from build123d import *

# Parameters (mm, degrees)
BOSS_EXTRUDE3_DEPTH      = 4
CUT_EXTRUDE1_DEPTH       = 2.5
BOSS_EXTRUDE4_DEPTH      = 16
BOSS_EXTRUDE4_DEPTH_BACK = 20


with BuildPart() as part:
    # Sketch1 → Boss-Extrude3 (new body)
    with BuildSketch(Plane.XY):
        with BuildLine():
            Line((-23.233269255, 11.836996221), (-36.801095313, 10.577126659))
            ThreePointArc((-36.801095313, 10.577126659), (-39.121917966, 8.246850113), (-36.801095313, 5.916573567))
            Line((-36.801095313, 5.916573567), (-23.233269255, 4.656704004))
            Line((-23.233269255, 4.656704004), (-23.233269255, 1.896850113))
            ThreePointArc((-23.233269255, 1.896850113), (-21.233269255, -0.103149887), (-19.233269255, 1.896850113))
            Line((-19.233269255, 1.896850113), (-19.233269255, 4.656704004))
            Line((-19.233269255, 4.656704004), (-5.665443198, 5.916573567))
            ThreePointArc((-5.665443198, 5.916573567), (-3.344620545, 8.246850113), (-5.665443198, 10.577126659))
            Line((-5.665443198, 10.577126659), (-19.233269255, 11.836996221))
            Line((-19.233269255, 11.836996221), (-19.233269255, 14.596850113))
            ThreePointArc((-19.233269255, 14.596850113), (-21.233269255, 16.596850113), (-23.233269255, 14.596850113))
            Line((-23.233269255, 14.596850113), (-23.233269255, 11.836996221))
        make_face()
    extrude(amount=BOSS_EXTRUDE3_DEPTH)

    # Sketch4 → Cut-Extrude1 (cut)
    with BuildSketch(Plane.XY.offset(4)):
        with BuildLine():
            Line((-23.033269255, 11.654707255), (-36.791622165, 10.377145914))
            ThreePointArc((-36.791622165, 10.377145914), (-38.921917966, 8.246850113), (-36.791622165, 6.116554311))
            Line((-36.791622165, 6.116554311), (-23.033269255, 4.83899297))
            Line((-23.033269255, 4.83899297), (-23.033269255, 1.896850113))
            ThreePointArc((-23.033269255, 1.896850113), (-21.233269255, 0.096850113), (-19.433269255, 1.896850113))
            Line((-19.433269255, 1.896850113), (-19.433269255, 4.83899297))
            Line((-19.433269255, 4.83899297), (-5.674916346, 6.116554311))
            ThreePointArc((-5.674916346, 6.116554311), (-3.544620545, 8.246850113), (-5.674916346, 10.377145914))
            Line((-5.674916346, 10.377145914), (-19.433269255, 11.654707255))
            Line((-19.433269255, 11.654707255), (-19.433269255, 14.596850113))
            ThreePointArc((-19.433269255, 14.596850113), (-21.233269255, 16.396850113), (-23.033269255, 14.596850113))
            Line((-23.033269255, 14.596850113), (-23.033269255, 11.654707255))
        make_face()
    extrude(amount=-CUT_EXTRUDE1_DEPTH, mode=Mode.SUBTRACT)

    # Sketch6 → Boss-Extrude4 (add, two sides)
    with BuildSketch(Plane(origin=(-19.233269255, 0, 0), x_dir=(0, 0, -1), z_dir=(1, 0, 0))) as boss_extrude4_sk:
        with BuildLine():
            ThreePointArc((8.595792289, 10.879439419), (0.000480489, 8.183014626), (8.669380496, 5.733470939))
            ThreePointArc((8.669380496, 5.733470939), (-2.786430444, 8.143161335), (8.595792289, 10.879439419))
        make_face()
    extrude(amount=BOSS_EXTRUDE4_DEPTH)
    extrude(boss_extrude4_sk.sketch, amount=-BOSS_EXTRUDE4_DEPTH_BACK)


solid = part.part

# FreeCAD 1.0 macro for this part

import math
import FreeCAD as App
import Part
import Sketcher

V = App.Vector
Q = App.Units.Quantity

doc = App.newDocument("Part")
body = doc.addObject("PartDesign::Body", "Body")

# Sketch on XY plane
sketch1 = body.newObject("Sketcher::SketchObject", "Sketch")
sketch1.AttachmentSupport = (doc.getObject("XY_Plane"), [""])
sketch1.MapMode = "FlatFace"
sketch1.addGeometry(Part.LineSegment(V(-23.233269, 11.836996, 0), V(-36.801095, 10.577127, 0)), False)
sketch1.addGeometry(Part.ArcOfCircle(Part.Circle(V(-36.791622, 8.24685, 0), V(0, 0, 1), 2.330296), math.radians(90.23292), math.radians(269.76708)), False)
sketch1.addGeometry(Part.LineSegment(V(-36.801095, 5.916574, 0), V(-23.233269, 4.656704, 0)), False)
sketch1.addGeometry(Part.LineSegment(V(-23.233269, 4.656704, 0), V(-23.233269, 1.89685, 0)), False)
sketch1.addGeometry(Part.ArcOfCircle(Part.Circle(V(-21.233269, 1.89685, 0), V(0, 0, 1), 2), math.radians(180), math.radians(360)), False)
sketch1.addGeometry(Part.LineSegment(V(-19.233269, 1.89685, 0), V(-19.233269, 4.656704, 0)), False)
sketch1.addGeometry(Part.LineSegment(V(-19.233269, 4.656704, 0), V(-5.665443, 5.916574, 0)), False)
sketch1.addGeometry(Part.ArcOfCircle(Part.Circle(V(-5.674916, 8.24685, 0), V(0, 0, 1), 2.330296), math.radians(-89.76708), math.radians(89.76708)), False)
sketch1.addGeometry(Part.LineSegment(V(-5.665443, 10.577127, 0), V(-19.233269, 11.836996, 0)), False)
sketch1.addGeometry(Part.LineSegment(V(-19.233269, 11.836996, 0), V(-19.233269, 14.59685, 0)), False)
sketch1.addGeometry(Part.ArcOfCircle(Part.Circle(V(-21.233269, 14.59685, 0), V(0, 0, 1), 2), math.radians(0), math.radians(180)), False)
sketch1.addGeometry(Part.LineSegment(V(-23.233269, 14.59685, 0), V(-23.233269, 11.836996, 0)), False)
sketch1.addConstraint(Sketcher.Constraint("Coincident", 0, 2, 1, 1))
sketch1.addConstraint(Sketcher.Constraint("Coincident", 1, 2, 2, 1))
sketch1.addConstraint(Sketcher.Constraint("Coincident", 2, 2, 3, 1))
sketch1.addConstraint(Sketcher.Constraint("Tangent", 3, 2, 4, 1))
sketch1.addConstraint(Sketcher.Constraint("Tangent", 4, 2, 5, 1))
sketch1.addConstraint(Sketcher.Constraint("Coincident", 5, 2, 6, 1))
sketch1.addConstraint(Sketcher.Constraint("Coincident", 6, 2, 7, 1))
sketch1.addConstraint(Sketcher.Constraint("Coincident", 7, 2, 8, 1))
sketch1.addConstraint(Sketcher.Constraint("Coincident", 8, 2, 9, 1))
sketch1.addConstraint(Sketcher.Constraint("Tangent", 9, 2, 10, 1))
sketch1.addConstraint(Sketcher.Constraint("Tangent", 10, 2, 11, 1))
sketch1.addConstraint(Sketcher.Constraint("Coincident", 11, 2, 0, 1))
sketch1.addConstraint(Sketcher.Constraint("Vertical", 3))
sketch1.addConstraint(Sketcher.Constraint("Vertical", 5))
sketch1.addConstraint(Sketcher.Constraint("Vertical", 9))
sketch1.addConstraint(Sketcher.Constraint("Vertical", 11))
sketch1.addConstraint(Sketcher.Constraint("Equal", 1, 7))
sketch1.addConstraint(Sketcher.Constraint("Equal", 4, 10))
sketch1.addConstraint(Sketcher.Constraint("Parallel", 0, 6))
sketch1.addConstraint(Sketcher.Constraint("Parallel", 2, 8))
sketch1.addConstraint(Sketcher.Constraint("Horizontal", 1, 3, 7, 3))
sketch1.addConstraint(Sketcher.Constraint("Horizontal", 2, 2, 5, 2))
sketch1.addConstraint(Sketcher.Constraint("Horizontal", 1, 2, 6, 2))
sketch1.addConstraint(Sketcher.Constraint("Horizontal", 0, 2, 7, 2))
sketch1.addConstraint(Sketcher.Constraint("Horizontal", 8, 2, 11, 2))
sketch1.addConstraint(Sketcher.Constraint("Vertical", 4, 3, 10, 3))
sketch1.addConstraint(Sketcher.Constraint("Vertical", 0, 2, 1, 2))
sketch1.addConstraint(Sketcher.Constraint("Equal", 5, 9))
sketch1.addConstraint(Sketcher.Constraint("Radius", 4, Q("2 mm")))
sketch1.addConstraint(Sketcher.Constraint("DistanceY", 4, 3, 10, 3, Q("12.7 mm")))
sketch1.addConstraint(Sketcher.Constraint("Radius", 1, Q("2.330296 mm")))
sketch1.addConstraint(Sketcher.Constraint("DistanceY", 3, 2, 3, 1, Q("2.759854 mm")))
sketch1.addConstraint(Sketcher.Constraint("DistanceY", -1, 1, 1, 3, Q("8.24685 mm")))
sketch1.addConstraint(Sketcher.Constraint("DistanceX", 4, 3, -1, 1, Q("21.233269 mm")))
sketch1.addConstraint(Sketcher.Constraint("DistanceX", 0, 2, 7, 3, Q("31.126179 mm")))
sketch1.addConstraint(Sketcher.Constraint("Distance", 0, Q("13.626194 mm")))
pad1 = body.newObject("PartDesign::Pad", "Pad")
pad1.Profile = sketch1
pad1.Length = 4

# Sketch on XY plane
sketch2 = body.newObject("Sketcher::SketchObject", "Sketch001")
sketch2.AttachmentSupport = (doc.getObject("XY_Plane"), [""])
sketch2.MapMode = "FlatFace"
sketch2.AttachmentOffset = App.Placement(V(0, 0, 4), App.Rotation())
sketch2.addGeometry(Part.LineSegment(V(-23, 11.7, 0), V(-36.8, 10.4, 0)), False)
sketch2.addGeometry(Part.ArcOfCircle(Part.Circle(V(-36.8, 8.2, 0), V(0, 0, 1), 2.1), math.radians(90), math.radians(270)), False)
sketch2.addGeometry(Part.LineSegment(V(-36.8, 6.1, 0), V(-23, 4.8, 0)), False)
sketch2.addGeometry(Part.LineSegment(V(-23, 4.8, 0), V(-23, 1.9, 0)), False)
sketch2.addGeometry(Part.ArcOfCircle(Part.Circle(V(-21.2, 1.9, 0), V(0, 0, 1), 1.8), math.radians(180), math.radians(360)), False)
sketch2.addGeometry(Part.LineSegment(V(-19.4, 1.9, 0), V(-19.4, 4.8, 0)), False)
sketch2.addGeometry(Part.LineSegment(V(-19.4, 4.8, 0), V(-5.7, 6.1, 0)), False)
sketch2.addGeometry(Part.ArcOfCircle(Part.Circle(V(-5.7, 8.2, 0), V(0, 0, 1), 2.1), math.radians(-90), math.radians(90)), False)
sketch2.addGeometry(Part.LineSegment(V(-5.7, 10.4, 0), V(-19.4, 11.7, 0)), False)
sketch2.addGeometry(Part.LineSegment(V(-19.4, 11.7, 0), V(-19.4, 14.6, 0)), False)
sketch2.addGeometry(Part.ArcOfCircle(Part.Circle(V(-21.2, 14.6, 0), V(0, 0, 1), 1.8), math.radians(0), math.radians(180)), False)
sketch2.addGeometry(Part.LineSegment(V(-23, 14.6, 0), V(-23, 11.7, 0)), False)
sketch2.addConstraint(Sketcher.Constraint("Coincident", 0, 2, 1, 1))
sketch2.addConstraint(Sketcher.Constraint("Coincident", 1, 2, 2, 1))
sketch2.addConstraint(Sketcher.Constraint("Coincident", 2, 2, 3, 1))
sketch2.addConstraint(Sketcher.Constraint("Tangent", 3, 2, 4, 1))
sketch2.addConstraint(Sketcher.Constraint("Tangent", 4, 2, 5, 1))
sketch2.addConstraint(Sketcher.Constraint("Coincident", 5, 2, 6, 1))
sketch2.addConstraint(Sketcher.Constraint("Coincident", 6, 2, 7, 1))
sketch2.addConstraint(Sketcher.Constraint("Coincident", 7, 2, 8, 1))
sketch2.addConstraint(Sketcher.Constraint("Coincident", 8, 2, 9, 1))
sketch2.addConstraint(Sketcher.Constraint("Tangent", 9, 2, 10, 1))
sketch2.addConstraint(Sketcher.Constraint("Tangent", 10, 2, 11, 1))
sketch2.addConstraint(Sketcher.Constraint("Coincident", 11, 2, 0, 1))
sketch2.addConstraint(Sketcher.Constraint("Vertical", 3))
sketch2.addConstraint(Sketcher.Constraint("Vertical", 5))
sketch2.addConstraint(Sketcher.Constraint("Vertical", 9))
sketch2.addConstraint(Sketcher.Constraint("Vertical", 11))
sketch2.addConstraint(Sketcher.Constraint("Equal", 1, 7))
sketch2.addConstraint(Sketcher.Constraint("Equal", 4, 10))
sketch2.addConstraint(Sketcher.Constraint("Parallel", 0, 6))
sketch2.addConstraint(Sketcher.Constraint("Parallel", 2, 8))
sketch2.addConstraint(Sketcher.Constraint("Horizontal", 1, 3, 7, 3))
sketch2.addConstraint(Sketcher.Constraint("Horizontal", 2, 2, 5, 2))
sketch2.addConstraint(Sketcher.Constraint("Horizontal", 8, 2, 11, 2))
sketch2.addConstraint(Sketcher.Constraint("Vertical", 4, 3, 10, 3))
sketch2.addConstraint(Sketcher.Constraint("Vertical", 1, 3, 0, 2))
sketch2.addConstraint(Sketcher.Constraint("Vertical", 0, 2, 1, 2))
sketch2.addConstraint(Sketcher.Constraint("Vertical", 7, 3, 6, 2))
sketch2.addConstraint(Sketcher.Constraint("Vertical", 6, 2, 7, 2))
sketch2.addConstraint(Sketcher.Constraint("Equal", 5, 9))
sketch2.addConstraint(Sketcher.Constraint("Radius", 4, Q("1.8 mm")))
sketch2.addConstraint(Sketcher.Constraint("DistanceY", 4, 3, 10, 3, Q("12.7 mm")))
sketch2.addConstraint(Sketcher.Constraint("Radius", 1, Q("2.130296 mm")))
sketch2.addConstraint(Sketcher.Constraint("Distance", 0, Q("13.817541 mm")))
sketch2.addConstraint(Sketcher.Constraint("DistanceY", 3, 2, 3, 1, Q("2.942143 mm")))
sketch2.addConstraint(Sketcher.Constraint("DistanceY", -1, 1, 1, 3, Q("8.24685 mm")))
sketch2.addConstraint(Sketcher.Constraint("DistanceX", 4, 3, -1, 1, Q("21.233269 mm")))
pocket1 = body.newObject("PartDesign::Pocket", "Pocket")
pocket1.Profile = sketch2
pocket1.Length = 2.5

# Sketch on YZ plane
sketch3 = body.newObject("Sketcher::SketchObject", "Sketch002")
sketch3.AttachmentSupport = (doc.getObject("YZ_Plane"), [""])
sketch3.MapMode = "FlatFace"
sketch3.AttachmentOffset = App.Placement(V(0, 0, -19.233269), App.Rotation())
sketch3.addGeometry(Part.ArcOfCircle(Part.Circle(V(8.3, -4.7, 0), V(0, 0, 1), 4.7), math.radians(-56), math.radians(238)), False)
sketch3.addGeometry(Part.ArcOfCircle(Part.Circle(V(8.2, -3.2, 0), V(0, 0, 1), 6), math.radians(-64), math.radians(245)), False)
sketch3.addConstraint(Sketcher.Constraint("Coincident", 0, 1, 1, 1))
sketch3.addConstraint(Sketcher.Constraint("Coincident", 1, 2, 0, 2))
sketch3.addConstraint(Sketcher.Constraint("Radius", 1, Q("6 mm")))
sketch3.addConstraint(Sketcher.Constraint("Radius", 0, Q("4.7 mm")))
sketch3.addConstraint(Sketcher.Constraint("DistanceY", 0, 3, -1, 1, Q("4.7 mm")))
sketch3.addConstraint(Sketcher.Constraint("DistanceX", -1, 1, 0, 3, Q("8.250219 mm")))
sketch3.addConstraint(Sketcher.Constraint("DistanceX", -1, 1, 0, 1, Q("10.879439 mm")))
sketch3.addConstraint(Sketcher.Constraint("DistanceX", -1, 1, 1, 2, Q("5.733471 mm")))
pad2 = body.newObject("PartDesign::Pad", "Pad001")
pad2.Profile = sketch3
pad2.Type = "TwoLengths"
pad2.Length = 16
pad2.Length2 = 20

doc.recompute()
